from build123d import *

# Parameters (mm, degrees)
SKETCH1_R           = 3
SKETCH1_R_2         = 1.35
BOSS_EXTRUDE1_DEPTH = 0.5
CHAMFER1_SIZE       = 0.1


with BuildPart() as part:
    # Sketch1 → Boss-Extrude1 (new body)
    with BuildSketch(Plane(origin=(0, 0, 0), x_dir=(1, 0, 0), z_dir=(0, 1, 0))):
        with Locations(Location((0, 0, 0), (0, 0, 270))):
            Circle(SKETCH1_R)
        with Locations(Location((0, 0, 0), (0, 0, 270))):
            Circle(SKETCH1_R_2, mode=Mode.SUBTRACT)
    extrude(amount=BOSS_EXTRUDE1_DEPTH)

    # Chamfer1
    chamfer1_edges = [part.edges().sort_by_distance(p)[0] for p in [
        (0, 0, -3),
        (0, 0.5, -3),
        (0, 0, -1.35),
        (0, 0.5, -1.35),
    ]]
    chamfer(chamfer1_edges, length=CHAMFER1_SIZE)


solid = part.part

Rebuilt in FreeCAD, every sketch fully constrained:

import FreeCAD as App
import Part
import Sketcher


def edges_at(feature, points):
    """Names of the edges that pass closest to the given points."""
    edges = feature.Shape.Edges
    near = lambda p: min(range(len(edges)), key=lambda i: edges[i].distToShape(Part.Vertex(*p))[0])
    return sorted({f"Edge{near(p) + 1}" for p in points})

doc = App.newDocument("Part")
params = doc.addObject("Spreadsheet::Sheet", "Params")
for row, (alias, value) in enumerate([
    ("sketch1_diameter", "6 mm"),
    ("sketch1_diameter2", "2.7 mm"),
    ("pad1_length", "0.5 mm"),
    ("chamfer_size", "0.1 mm"),
], start=1):
    params.set(f"A{row}", alias)
    params.set(f"B{row}", "=" + value)
    params.setAlias(f"B{row}", alias)

body = doc.addObject("PartDesign::Body", "Body")

sketch1 = body.newObject("Sketcher::SketchObject", "Sketch")
sketch1.AttachmentSupport = (doc.getObject("XZ_Plane"), [""])
sketch1.MapMode = "FlatFace"
sketch1.addGeometry([
    Part.Circle(App.Vector(0, 0, 0), App.Vector(0, 0, 1), 3),
    Part.Circle(App.Vector(0, 0, 0), App.Vector(0, 0, 1), 1.4),
], False)
sketch1.addConstraint([
    Sketcher.Constraint("Coincident", 0, 3, -1, 1),
    Sketcher.Constraint("Coincident", 1, 3, -1, 1),
    Sketcher.Constraint("Diameter", 0, 6.0),
    Sketcher.Constraint("Diameter", 1, 2.7),
])
sketch1.setExpression("Constraints[2]", "Params.sketch1_diameter")
sketch1.setExpression("Constraints[3]", "Params.sketch1_diameter2")
pad1 = body.newObject("PartDesign::Pad", "Pad")
pad1.Profile = sketch1
pad1.setExpression("Length", "Params.pad1_length")
pad1.Reversed = True
doc.recompute()

chamfer = body.newObject("PartDesign::Chamfer", "Chamfer")
chamfer.Base = (pad1, edges_at(pad1, [
    (0, 0, -3),
    (0, 0.5, -3),
    (0, 0, -1.35),
    (0, 0.5, -1.35),
]))
chamfer.setExpression("Size", "Params.chamfer_size")

doc.recompute()
